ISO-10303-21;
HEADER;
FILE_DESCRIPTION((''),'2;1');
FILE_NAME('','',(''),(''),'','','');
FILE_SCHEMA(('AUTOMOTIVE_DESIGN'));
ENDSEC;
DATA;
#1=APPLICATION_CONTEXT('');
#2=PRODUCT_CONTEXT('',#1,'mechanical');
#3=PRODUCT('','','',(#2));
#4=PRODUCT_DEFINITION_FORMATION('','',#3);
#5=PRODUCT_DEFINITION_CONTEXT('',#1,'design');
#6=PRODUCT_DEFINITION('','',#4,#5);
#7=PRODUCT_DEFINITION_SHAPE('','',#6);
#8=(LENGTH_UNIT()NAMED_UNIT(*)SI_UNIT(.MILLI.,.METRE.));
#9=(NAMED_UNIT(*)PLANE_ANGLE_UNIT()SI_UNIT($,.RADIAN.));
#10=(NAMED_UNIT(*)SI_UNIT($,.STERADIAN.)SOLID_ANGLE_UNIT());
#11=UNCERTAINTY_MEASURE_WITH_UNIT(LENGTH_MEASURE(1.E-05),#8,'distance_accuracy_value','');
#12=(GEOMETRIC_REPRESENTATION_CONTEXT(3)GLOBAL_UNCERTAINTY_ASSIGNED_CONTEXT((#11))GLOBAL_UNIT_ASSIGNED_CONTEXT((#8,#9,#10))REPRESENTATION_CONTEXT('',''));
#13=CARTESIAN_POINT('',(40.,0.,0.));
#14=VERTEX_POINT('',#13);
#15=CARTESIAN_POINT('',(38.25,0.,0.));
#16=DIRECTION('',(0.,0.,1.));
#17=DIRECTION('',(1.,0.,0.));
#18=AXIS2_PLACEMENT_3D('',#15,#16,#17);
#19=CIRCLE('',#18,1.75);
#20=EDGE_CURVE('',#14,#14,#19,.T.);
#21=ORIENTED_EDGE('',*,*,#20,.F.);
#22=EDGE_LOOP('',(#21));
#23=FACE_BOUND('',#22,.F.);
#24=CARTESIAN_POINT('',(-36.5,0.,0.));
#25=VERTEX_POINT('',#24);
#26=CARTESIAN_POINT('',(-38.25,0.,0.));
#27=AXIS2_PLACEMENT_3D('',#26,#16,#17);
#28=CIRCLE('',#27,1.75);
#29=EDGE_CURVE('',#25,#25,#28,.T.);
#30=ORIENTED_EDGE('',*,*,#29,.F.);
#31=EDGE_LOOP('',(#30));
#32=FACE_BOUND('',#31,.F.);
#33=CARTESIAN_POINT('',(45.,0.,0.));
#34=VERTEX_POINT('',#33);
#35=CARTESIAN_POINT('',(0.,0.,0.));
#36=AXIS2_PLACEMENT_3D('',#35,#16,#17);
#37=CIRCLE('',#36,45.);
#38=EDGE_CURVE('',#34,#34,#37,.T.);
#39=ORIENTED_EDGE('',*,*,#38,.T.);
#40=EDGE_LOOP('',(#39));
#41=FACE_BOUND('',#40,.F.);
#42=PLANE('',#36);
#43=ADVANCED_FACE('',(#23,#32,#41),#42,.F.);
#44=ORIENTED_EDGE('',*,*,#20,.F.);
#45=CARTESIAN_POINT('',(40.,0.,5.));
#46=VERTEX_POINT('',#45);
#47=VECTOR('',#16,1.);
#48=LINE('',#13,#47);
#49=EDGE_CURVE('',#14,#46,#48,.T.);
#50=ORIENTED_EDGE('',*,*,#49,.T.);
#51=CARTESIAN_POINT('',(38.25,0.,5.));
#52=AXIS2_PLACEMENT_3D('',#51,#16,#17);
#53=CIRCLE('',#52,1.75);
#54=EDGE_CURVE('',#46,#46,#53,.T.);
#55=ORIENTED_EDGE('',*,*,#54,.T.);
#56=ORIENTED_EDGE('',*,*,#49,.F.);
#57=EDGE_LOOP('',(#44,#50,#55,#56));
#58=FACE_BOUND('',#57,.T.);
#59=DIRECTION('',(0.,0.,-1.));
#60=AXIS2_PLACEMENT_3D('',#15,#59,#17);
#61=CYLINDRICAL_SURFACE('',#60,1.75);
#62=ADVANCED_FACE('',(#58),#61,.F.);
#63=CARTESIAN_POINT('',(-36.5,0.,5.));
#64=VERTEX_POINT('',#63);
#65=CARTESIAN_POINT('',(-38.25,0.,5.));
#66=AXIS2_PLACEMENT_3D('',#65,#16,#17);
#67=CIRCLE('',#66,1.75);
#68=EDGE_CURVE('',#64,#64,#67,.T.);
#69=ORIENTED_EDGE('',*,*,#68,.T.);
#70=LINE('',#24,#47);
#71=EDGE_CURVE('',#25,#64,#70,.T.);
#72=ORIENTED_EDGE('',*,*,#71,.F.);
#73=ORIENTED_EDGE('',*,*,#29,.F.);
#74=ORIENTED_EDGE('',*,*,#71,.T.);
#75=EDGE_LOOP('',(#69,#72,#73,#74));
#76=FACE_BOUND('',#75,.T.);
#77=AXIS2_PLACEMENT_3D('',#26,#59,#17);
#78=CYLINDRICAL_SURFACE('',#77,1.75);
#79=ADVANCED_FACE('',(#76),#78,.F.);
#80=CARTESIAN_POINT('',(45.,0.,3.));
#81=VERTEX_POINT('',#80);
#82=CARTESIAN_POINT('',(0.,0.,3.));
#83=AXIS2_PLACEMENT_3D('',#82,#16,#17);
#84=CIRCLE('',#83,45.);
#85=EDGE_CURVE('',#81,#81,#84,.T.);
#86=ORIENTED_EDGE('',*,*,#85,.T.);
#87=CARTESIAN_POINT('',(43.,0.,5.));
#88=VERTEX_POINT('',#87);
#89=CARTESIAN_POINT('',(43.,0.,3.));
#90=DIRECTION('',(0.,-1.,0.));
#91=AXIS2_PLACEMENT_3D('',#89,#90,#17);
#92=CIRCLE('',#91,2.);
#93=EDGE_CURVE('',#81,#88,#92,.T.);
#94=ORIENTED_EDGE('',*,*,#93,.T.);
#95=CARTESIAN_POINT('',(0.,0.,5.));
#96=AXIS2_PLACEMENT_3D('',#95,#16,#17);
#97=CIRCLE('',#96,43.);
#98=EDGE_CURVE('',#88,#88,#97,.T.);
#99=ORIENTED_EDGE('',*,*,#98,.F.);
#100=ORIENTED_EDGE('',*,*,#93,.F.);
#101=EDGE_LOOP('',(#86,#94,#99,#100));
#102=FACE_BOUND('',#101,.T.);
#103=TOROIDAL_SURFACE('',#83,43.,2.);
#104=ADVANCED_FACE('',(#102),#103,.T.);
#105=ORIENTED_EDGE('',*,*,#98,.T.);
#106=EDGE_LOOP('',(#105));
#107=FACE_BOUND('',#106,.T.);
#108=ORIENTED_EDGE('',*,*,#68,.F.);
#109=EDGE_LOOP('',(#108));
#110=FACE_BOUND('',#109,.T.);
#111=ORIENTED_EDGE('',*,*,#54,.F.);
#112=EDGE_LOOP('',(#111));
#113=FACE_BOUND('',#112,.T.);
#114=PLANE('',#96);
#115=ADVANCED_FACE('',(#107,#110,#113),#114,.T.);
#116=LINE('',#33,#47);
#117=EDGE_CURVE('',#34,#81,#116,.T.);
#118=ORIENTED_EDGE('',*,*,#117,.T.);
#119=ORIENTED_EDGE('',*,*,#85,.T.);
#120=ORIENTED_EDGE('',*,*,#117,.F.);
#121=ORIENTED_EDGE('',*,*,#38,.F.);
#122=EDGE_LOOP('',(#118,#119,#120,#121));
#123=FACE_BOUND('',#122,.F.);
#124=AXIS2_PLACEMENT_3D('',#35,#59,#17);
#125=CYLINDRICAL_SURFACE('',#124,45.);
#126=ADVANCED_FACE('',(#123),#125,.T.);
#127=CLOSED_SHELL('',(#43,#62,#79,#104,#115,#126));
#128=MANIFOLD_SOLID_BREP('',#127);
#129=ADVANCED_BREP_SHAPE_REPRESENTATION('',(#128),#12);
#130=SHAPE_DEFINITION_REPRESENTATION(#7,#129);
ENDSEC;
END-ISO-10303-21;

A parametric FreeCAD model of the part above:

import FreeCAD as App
import Part
import Sketcher

V = App.Vector
Q = App.Units.Quantity


def edges_at(feature, points):
    """Names of the edges that pass closest to the given points."""
    edges = feature.Shape.Edges
    near = lambda p: min(range(len(edges)), key=lambda i: edges[i].distToShape(Part.Vertex(*p))[0])
    return sorted({f"Edge{near(p) + 1}" for p in points})

doc = App.newDocument("Part")
body = doc.addObject("PartDesign::Body", "Body")

# Sketch on XY plane
sketch1 = doc.addObject("Sketcher::SketchObject", "Sketch")
body.addObject(sketch1)
sketch1.AttachmentSupport = (doc.XY_Plane, [""])
sketch1.MapMode = "FlatFace"
sketch1.addGeometry([
    Part.Circle(V(0, 0, 0), V(0, 0, 1), 45),
    Part.Circle(V(-38.2, 0, 0), V(0, 0, 1), 1.8),
    Part.Circle(V(38.2, 0, 0), V(0, 0, 1), 1.8),
], False)
sketch1.addConstraint([
    Sketcher.Constraint("Coincident", 0, 3, -1, 1),
    Sketcher.Constraint("Equal", 1, 2),
    Sketcher.Constraint("Symmetric", 1, 3, 2, 3, -1, 1),
    Sketcher.Constraint("PointOnObject", 1, 3, -1),
    Sketcher.Constraint("Diameter", 0, Q("90 mm")),
    Sketcher.Constraint("Diameter", 1, Q("3.5 mm")),
    Sketcher.Constraint("DistanceX", 1, 3, 2, 3, Q("76.5 mm")),
])
pad1 = doc.addObject("PartDesign::Pad", "Pad")
body.addObject(pad1)
pad1.Profile = sketch1
pad1.Length = 5
doc.recompute()

fillet = doc.addObject("PartDesign::Fillet", "Fillet")
body.addObject(fillet)
fillet.Base = (pad1, edges_at(pad1, [(-45, 0, 5)]))
fillet.Radius = 2

doc.recompute()
